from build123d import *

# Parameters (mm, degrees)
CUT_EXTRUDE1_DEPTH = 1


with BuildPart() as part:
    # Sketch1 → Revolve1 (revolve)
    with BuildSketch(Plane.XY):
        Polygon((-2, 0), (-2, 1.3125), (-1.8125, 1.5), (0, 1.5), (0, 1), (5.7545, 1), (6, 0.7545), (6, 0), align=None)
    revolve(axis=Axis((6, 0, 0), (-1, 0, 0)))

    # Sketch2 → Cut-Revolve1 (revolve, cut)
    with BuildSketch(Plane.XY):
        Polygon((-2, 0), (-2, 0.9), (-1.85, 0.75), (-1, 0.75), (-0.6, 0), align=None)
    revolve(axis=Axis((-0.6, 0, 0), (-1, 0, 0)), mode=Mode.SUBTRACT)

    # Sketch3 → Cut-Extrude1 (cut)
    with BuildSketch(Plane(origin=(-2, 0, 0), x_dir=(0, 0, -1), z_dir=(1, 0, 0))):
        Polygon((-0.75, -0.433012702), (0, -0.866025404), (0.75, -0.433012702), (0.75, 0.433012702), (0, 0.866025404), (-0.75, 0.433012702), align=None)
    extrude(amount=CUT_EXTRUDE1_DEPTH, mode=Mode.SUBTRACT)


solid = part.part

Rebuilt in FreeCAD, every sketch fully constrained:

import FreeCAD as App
import Part
import Sketcher
from FreeCAD import Vector
Q = App.Units.Quantity

doc = App.newDocument("Part")
params = doc.addObject("Spreadsheet::Sheet", "Params")
for row, (alias, value) in enumerate([
    ("sketch1_width", "8 mm"),
    ("sketch1_height", "0.5 mm"),
    ("revolution_angle", "360 deg"),
    ("sketch2_width", "1.4 mm"),
    ("sketch2_height", "0.9 mm"),
    ("sketch2_width2", "0.85 mm"),
    ("groove_angle", "360 deg"),
    ("pocket1_length", "1 mm"),
], start=1):
    params.set(f"A{row}", alias)
    params.set(f"B{row}", "=" + value)
    params.setAlias(f"B{row}", alias)

body = doc.addObject("PartDesign::Body", "Body")

sketch1 = body.newObject("Sketcher::SketchObject", "Sketch")
sketch1.AttachmentSupport = (doc.getObject("XY_Plane"), [""])
sketch1.MapMode = "FlatFace"
sketch1.addGeometry([
    Part.LineSegment(Vector(-2, 1.31, 0), Vector(-2, 0, 0)),
    Part.LineSegment(Vector(-2, 0, 0), Vector(6, 0, 0)),
    Part.LineSegment(Vector(6, 0, 0), Vector(6, 0.75, 0)),
    Part.LineSegment(Vector(6, 0.75, 0), Vector(5.75, 1, 0)),
    Part.LineSegment(Vector(5.75, 1, 0), Vector(0, 1, 0)),
    Part.LineSegment(Vector(0, 1, 0), Vector(0, 1.5, 0)),
    Part.LineSegment(Vector(0, 1.5, 0), Vector(-1.81, 1.5, 0)),
    Part.LineSegment(Vector(-1.81, 1.5, 0), Vector(-2, 1.31, 0)),
], False)
sketch1.addConstraint([
    Sketcher.Constraint("Coincident", 0, 2, 1, 1),
    Sketcher.Constraint("Coincident", 1, 2, 2, 1),
    Sketcher.Constraint("Coincident", 2, 2, 3, 1),
    Sketcher.Constraint("Coincident", 3, 2, 4, 1),
    Sketcher.Constraint("Coincident", 4, 2, 5, 1),
    Sketcher.Constraint("Coincident", 5, 2, 6, 1),
    Sketcher.Constraint("Coincident", 6, 2, 7, 1),
    Sketcher.Constraint("Coincident", 7, 2, 0, 1),
    Sketcher.Constraint("Vertical", 0),
    Sketcher.Constraint("Horizontal", 1),
    Sketcher.Constraint("Vertical", 2),
    Sketcher.Constraint("Horizontal", 4),
    Sketcher.Constraint("Vertical", 5),
    Sketcher.Constraint("Horizontal", 6),
    Sketcher.Constraint("PointOnObject", 0, 2, -1),
    Sketcher.Constraint("PointOnObject", 4, 2, -2),
    Sketcher.Constraint("Perpendicular", 3, 7),
    Sketcher.Constraint("DistanceX", 1, 1, 1, 2, 8.0),
    Sketcher.Constraint("Angle", 3, Q("135 deg")),
    Sketcher.Constraint("DistanceY", 5, 1, 5, 2, 0.5),
    Sketcher.Constraint("DistanceX", 0, 2, -1, 1, 2.0),
    Sketcher.Constraint("DistanceY", -1, 1, 3, 2, 1.0),
    Sketcher.Constraint("DistanceX", 4, 2, 4, 1, 5.7545),
    Sketcher.Constraint("DistanceX", 6, 2, 6, 1, 1.8125),
])
sketch1.setExpression("Constraints[17]", "Params.sketch1_width")
sketch1.setExpression("Constraints[19]", "Params.sketch1_height")
revolution = body.newObject("PartDesign::Revolution", "Revolution")
revolution.Profile = sketch1
revolution.ReferenceAxis = (sketch1, ["H_Axis"])
revolution.setExpression("Angle", "Params.revolution_angle")

sketch2 = body.newObject("Sketcher::SketchObject", "Sketch001")
sketch2.AttachmentSupport = (doc.getObject("XY_Plane"), [""])
sketch2.MapMode = "FlatFace"
sketch2.addGeometry([
    Part.LineSegment(Vector(-2, 0.9, 0), Vector(-2, 0, 0)),
    Part.LineSegment(Vector(-2, 0, 0), Vector(-0.6, 0, 0)),
    Part.LineSegment(Vector(-0.6, 0, 0), Vector(-1, 0.75, 0)),
    Part.LineSegment(Vector(-1, 0.75, 0), Vector(-1.85, 0.75, 0)),
    Part.LineSegment(Vector(-1.85, 0.75, 0), Vector(-2, 0.9, 0)),
], False)
sketch2.addConstraint([
    Sketcher.Constraint("Coincident", 0, 2, 1, 1),
    Sketcher.Constraint("Coincident", 1, 2, 2, 1),
    Sketcher.Constraint("Coincident", 2, 2, 3, 1),
    Sketcher.Constraint("Coincident", 3, 2, 4, 1),
    Sketcher.Constraint("Coincident", 4, 2, 0, 1),
    Sketcher.Constraint("Vertical", 0),
    Sketcher.Constraint("Horizontal", 1),
    Sketcher.Constraint("Horizontal", 3),
    Sketcher.Constraint("PointOnObject", 0, 2, -1),
    Sketcher.Constraint("Angle", 4, Q("135 deg")),
    Sketcher.Constraint("DistanceX", 1, 1, 1, 2, 1.4),
    Sketcher.Constraint("DistanceY", 0, 2, 0, 1, 0.9),
    Sketcher.Constraint("DistanceX", 0, 2, -1, 1, 2.0),
    Sketcher.Constraint("DistanceX", 2, 2, -1, 1, 1.0),
    Sketcher.Constraint("DistanceX", 3, 2, 3, 1, 0.85),
])
sketch2.setExpression("Constraints[10]", "Params.sketch2_width")
sketch2.setExpression("Constraints[11]", "Params.sketch2_height")
sketch2.setExpression("Constraints[14]", "Params.sketch2_width2")
groove = body.newObject("PartDesign::Groove", "Groove")
groove.Profile = sketch2
groove.ReferenceAxis = (sketch2, ["H_Axis"])
groove.setExpression("Angle", "Params.groove_angle")

sketch3 = body.newObject("Sketcher::SketchObject", "Sketch002")
sketch3.AttachmentSupport = (doc.getObject("YZ_Plane"), [""])
sketch3.MapMode = "FlatFace"
sketch3.AttachmentOffset = App.Placement(Vector(0, 0, -2), App.Rotation())
sketch3.addGeometry([
    Part.LineSegment(Vector(-0.4, 0.8, 0), Vector(-0.9, 0, 0)),
    Part.LineSegment(Vector(-0.9, 0, 0), Vector(-0.4, -0.8, 0)),
    Part.LineSegment(Vector(-0.4, -0.8, 0), Vector(0.4, -0.8, 0)),
    Part.LineSegment(Vector(0.4, -0.8, 0), Vector(0.9, 0, 0)),
    Part.LineSegment(Vector(0.9, 0, 0), Vector(0.4, 0.8, 0)),
    Part.LineSegment(Vector(0.4, 0.8, 0), Vector(-0.4, 0.8, 0)),
], False)
sketch3.addConstraint([
    Sketcher.Constraint("Coincident", 0, 2, 1, 1),
    Sketcher.Constraint("Coincident", 1, 2, 2, 1),
    Sketcher.Constraint("Coincident", 2, 2, 3, 1),
    Sketcher.Constraint("Coincident", 3, 2, 4, 1),
    Sketcher.Constraint("Coincident", 4, 2, 5, 1),
    Sketcher.Constraint("Coincident", 5, 2, 0, 1),
    Sketcher.Constraint("Horizontal", 2),
    Sketcher.Constraint("Horizontal", 5),
    Sketcher.Constraint("Symmetric", 0, 2, 3, 2, -1, 1),
    Sketcher.Constraint("Symmetric", 1, 2, 4, 2, -1, 1),
    Sketcher.Constraint("PointOnObject", 0, 2, -1),
    Sketcher.Constraint("Parallel", 0, 3),
    Sketcher.Constraint("Vertical", 2, 2, 4, 2),
    Sketcher.Constraint("Angle", 0, Q("-120 deg")),
    Sketcher.Constraint("DistanceY", 2, 2, 4, 2, 1.5),
    Sketcher.Constraint("DistanceX", 2, 1, 2, 2, 0.866025),
])
pocket1 = body.newObject("PartDesign::Pocket", "Pocket")
pocket1.Profile = sketch3
pocket1.setExpression("Length", "Params.pocket1_length")
pocket1.Reversed = True

doc.recompute()
